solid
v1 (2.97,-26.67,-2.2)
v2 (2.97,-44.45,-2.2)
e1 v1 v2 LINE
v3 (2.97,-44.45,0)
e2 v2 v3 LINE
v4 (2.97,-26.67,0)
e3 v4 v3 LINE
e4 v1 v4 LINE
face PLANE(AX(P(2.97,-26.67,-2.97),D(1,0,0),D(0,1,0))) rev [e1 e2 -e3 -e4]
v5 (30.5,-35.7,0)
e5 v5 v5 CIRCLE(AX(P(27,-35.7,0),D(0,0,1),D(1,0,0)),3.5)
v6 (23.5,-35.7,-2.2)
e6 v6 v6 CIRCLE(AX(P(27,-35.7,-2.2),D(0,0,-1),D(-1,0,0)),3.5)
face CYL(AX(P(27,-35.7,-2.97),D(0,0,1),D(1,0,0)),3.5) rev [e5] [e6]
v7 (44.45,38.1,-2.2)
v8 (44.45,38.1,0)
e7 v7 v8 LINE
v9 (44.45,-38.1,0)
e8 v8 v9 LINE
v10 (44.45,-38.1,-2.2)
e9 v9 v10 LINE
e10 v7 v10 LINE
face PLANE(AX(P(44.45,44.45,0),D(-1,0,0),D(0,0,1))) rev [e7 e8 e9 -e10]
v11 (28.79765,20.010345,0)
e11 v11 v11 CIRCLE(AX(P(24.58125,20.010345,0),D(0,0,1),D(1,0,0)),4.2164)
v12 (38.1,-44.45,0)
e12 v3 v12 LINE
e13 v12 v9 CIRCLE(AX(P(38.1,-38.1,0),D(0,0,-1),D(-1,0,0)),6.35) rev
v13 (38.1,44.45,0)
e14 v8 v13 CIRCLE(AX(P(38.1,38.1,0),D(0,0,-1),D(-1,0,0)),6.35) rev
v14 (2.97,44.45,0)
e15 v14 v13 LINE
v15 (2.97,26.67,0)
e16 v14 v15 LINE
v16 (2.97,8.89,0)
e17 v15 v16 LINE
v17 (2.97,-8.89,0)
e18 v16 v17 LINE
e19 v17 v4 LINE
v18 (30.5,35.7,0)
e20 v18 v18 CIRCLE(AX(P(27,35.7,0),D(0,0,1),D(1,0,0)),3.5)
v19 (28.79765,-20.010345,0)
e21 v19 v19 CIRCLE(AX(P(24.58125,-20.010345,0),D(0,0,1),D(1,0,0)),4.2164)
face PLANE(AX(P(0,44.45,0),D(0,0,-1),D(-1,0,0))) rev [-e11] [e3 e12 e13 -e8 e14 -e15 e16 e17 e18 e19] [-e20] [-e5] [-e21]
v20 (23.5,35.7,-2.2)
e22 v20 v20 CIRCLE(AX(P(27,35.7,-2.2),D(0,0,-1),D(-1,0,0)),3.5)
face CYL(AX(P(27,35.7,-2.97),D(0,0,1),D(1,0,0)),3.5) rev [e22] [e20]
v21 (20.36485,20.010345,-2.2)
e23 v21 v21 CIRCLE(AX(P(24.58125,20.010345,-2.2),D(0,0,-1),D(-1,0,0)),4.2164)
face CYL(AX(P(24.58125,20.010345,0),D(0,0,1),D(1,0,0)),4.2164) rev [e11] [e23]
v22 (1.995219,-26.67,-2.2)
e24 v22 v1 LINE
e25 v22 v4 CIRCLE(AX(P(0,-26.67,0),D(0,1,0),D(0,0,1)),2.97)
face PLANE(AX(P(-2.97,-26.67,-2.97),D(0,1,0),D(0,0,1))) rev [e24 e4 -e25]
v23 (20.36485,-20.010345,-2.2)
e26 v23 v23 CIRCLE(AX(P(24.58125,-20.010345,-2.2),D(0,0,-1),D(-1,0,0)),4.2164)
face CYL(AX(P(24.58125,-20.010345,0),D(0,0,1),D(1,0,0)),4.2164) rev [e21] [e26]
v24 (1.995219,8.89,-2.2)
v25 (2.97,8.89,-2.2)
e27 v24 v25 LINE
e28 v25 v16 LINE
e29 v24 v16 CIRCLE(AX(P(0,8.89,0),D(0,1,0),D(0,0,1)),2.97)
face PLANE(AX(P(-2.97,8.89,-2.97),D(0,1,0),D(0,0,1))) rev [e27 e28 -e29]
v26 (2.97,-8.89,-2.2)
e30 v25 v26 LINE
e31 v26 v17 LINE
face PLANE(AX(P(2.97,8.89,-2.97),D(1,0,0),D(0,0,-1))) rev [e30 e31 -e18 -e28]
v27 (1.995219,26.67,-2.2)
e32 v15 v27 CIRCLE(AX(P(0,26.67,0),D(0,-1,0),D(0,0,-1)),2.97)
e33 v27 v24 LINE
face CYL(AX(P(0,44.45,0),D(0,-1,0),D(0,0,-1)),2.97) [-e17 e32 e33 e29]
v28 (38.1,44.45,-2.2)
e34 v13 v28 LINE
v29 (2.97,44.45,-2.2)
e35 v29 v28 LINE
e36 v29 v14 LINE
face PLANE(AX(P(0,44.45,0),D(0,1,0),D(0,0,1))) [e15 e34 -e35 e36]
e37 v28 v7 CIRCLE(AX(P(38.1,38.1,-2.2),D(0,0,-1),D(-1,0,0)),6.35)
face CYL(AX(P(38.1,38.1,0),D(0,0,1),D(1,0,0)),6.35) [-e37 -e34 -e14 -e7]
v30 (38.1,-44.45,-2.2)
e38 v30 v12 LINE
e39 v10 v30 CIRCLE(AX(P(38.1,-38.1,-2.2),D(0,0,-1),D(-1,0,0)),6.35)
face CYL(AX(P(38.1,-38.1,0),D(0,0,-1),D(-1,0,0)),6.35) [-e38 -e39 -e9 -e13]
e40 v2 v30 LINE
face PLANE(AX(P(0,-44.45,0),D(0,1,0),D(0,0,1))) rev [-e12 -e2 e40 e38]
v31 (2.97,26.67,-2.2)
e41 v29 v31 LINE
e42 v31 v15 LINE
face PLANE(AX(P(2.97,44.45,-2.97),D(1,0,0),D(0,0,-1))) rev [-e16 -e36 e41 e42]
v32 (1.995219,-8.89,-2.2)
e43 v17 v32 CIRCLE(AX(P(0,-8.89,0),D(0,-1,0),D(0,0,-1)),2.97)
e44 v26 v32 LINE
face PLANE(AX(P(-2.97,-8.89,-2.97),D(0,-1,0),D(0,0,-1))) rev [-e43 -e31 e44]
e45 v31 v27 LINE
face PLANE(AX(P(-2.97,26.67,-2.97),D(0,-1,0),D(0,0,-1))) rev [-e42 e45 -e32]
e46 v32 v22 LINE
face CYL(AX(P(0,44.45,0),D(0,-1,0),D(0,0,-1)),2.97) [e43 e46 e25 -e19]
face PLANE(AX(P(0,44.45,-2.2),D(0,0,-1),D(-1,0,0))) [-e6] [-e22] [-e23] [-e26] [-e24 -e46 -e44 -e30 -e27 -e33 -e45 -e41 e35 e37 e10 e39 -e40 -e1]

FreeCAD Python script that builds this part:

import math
import FreeCAD as App
import Part
import Sketcher
Q = App.Units.Quantity


def edges_at(feature, points):
    """Names of the edges that pass closest to the given points."""
    edges = feature.Shape.Edges
    near = lambda p: min(range(len(edges)), key=lambda i: edges[i].distToShape(Part.Vertex(*p))[0])
    return sorted({f"Edge{near(p) + 1}" for p in points})


def add_polygon(sketch, points):
    """Adds a closed chain of lines whose ends are joined by coincident constraints."""
    first, n = sketch.GeometryCount, len(points)
    for a, b in zip(points, points[1:] + points[:1]):
        sketch.addGeometry(Part.LineSegment(App.Vector(*a, 0), App.Vector(*b, 0)), False)
    for i in range(n):
        sketch.addConstraint(Sketcher.Constraint("Coincident", first + i, 2, first + (i + 1) % n, 1))

doc = App.newDocument("Part")
params = doc.addObject("Spreadsheet::Sheet", "Params")
for row, (alias, value) in enumerate([
    ("pad1_length", "3.5 in"),
    ("sketch2_height", "0.7 in"),
    ("fillet_radius", "0.25 in"),
    ("sketch4_diameter", "0.332 in"),
    ("hole_diameter", "0.332 in"),
], start=1):
    params.set(f"A{row}", alias)
    params.set(f"B{row}", "=" + value)
    params.setAlias(f"B{row}", alias)

body = doc.addObject("PartDesign::Body", "Body")

# Sketch on XZ plane
sketch1 = doc.addObject("Sketcher::SketchObject", "Sketch")
body.addObject(sketch1)
sketch1.AttachmentSupport = (doc.XZ_Plane, [""])
sketch1.MapMode = "FlatFace"
sketch1.addGeometry(Part.ArcOfCircle(Part.Circle(App.Vector(0, 0, 0), App.Vector(0, 0, 1), 3), math.radians(0), math.radians(312)), False)
sketch1.addGeometry(Part.LineSegment(App.Vector(3, 0, 0), App.Vector(44.5, 0, 0)), False)
sketch1.addGeometry(Part.LineSegment(App.Vector(44.5, 0, 0), App.Vector(44.5, -2.2, 0)), False)
sketch1.addGeometry(Part.LineSegment(App.Vector(44.5, -2.2, 0), App.Vector(2, -2.2, 0)), False)
sketch1.addConstraint(Sketcher.Constraint("Coincident", 0, 1, 1, 1))
sketch1.addConstraint(Sketcher.Constraint("Coincident", 1, 2, 2, 1))
sketch1.addConstraint(Sketcher.Constraint("Coincident", 2, 2, 3, 1))
sketch1.addConstraint(Sketcher.Constraint("Coincident", 3, 2, 0, 2))
sketch1.addConstraint(Sketcher.Constraint("Horizontal", 1))
sketch1.addConstraint(Sketcher.Constraint("Vertical", 2))
sketch1.addConstraint(Sketcher.Constraint("Horizontal", 3))
sketch1.addConstraint(Sketcher.Constraint("Coincident", 0, 3, -1, 1))
sketch1.addConstraint(Sketcher.Constraint("PointOnObject", 0, 1, -1))
sketch1.addConstraint(Sketcher.Constraint("DistanceX", -1, 1, 1, 2, Q("1.75 in")))
sketch1.addConstraint(Sketcher.Constraint("Radius", 0, Q("2.97 mm")))
sketch1.addConstraint(Sketcher.Constraint("DistanceY", 2, 2, 2, 1, Q("2.2 mm")))
pad1 = doc.addObject("PartDesign::Pad", "Pad")
body.addObject(pad1)
pad1.Profile = sketch1
pad1.setExpression("Length", "Params.pad1_length")
pad1.Midplane = True

# Sketch on XY plane
sketch2 = doc.addObject("Sketcher::SketchObject", "Sketch001")
body.addObject(sketch2)
sketch2.AttachmentSupport = (doc.XY_Plane, [""])
sketch2.MapMode = "FlatFace"
add_polygon(sketch2, [(-3, 44), (-3, 27), (3, 27), (3, 44)])  # lines 0-3
add_polygon(sketch2, [(-3, 9), (-3, -9), (3, -9), (3, 9)])  # lines 4-7
add_polygon(sketch2, [(-3, -27), (-3, -44), (3, -44), (3, -27)])  # lines 8-11
sketch2.addConstraint(Sketcher.Constraint("Vertical", 0))
sketch2.addConstraint(Sketcher.Constraint("Horizontal", 1))
sketch2.addConstraint(Sketcher.Constraint("Vertical", 2))
sketch2.addConstraint(Sketcher.Constraint("Horizontal", 3))
sketch2.addConstraint(Sketcher.Constraint("Vertical", 4))
sketch2.addConstraint(Sketcher.Constraint("Horizontal", 5))
sketch2.addConstraint(Sketcher.Constraint("Vertical", 6))
sketch2.addConstraint(Sketcher.Constraint("Horizontal", 7))
sketch2.addConstraint(Sketcher.Constraint("Vertical", 8))
sketch2.addConstraint(Sketcher.Constraint("Horizontal", 9))
sketch2.addConstraint(Sketcher.Constraint("Vertical", 10))
sketch2.addConstraint(Sketcher.Constraint("Horizontal", 11))
sketch2.addConstraint(Sketcher.Constraint("Symmetric", 4, 2, 6, 2, -1, 1))
sketch2.addConstraint(Sketcher.Constraint("Symmetric", 2, 2, 8, 2, -1, 1))
sketch2.addConstraint(Sketcher.Constraint("Symmetric", 0, 2, 10, 2, -1, 1))
sketch2.addConstraint(Sketcher.Constraint("Vertical", 3, 2, 4, 2))
sketch2.addConstraint(Sketcher.Constraint("Vertical", 2, 2, 5, 2))
sketch2.addConstraint(Sketcher.Constraint("Equal", 2, 4))
sketch2.addConstraint(Sketcher.Constraint("DistanceY", 0, 2, 0, 1, Q("0.7 in")))
sketch2.addConstraint(Sketcher.Constraint("DistanceY", 4, 2, 0, 2, Q("1.4 in")))
sketch2.addConstraint(Sketcher.Constraint("DistanceX", 1, 1, 1, 2, Q("5.94 mm")))
sketch2.setExpression("Constraints[30]", "Params.sketch2_height")
pocket1 = doc.addObject("PartDesign::Pocket", "Pocket")
body.addObject(pocket1)
pocket1.Profile = sketch2
pocket1.Type = "ThroughAll"
pocket1.Midplane = True
doc.recompute()

fillet = doc.addObject("PartDesign::Fillet", "Fillet")
body.addObject(fillet)
fillet.Base = (pocket1, edges_at(pocket1, [(44.45, 44.45, -1.1), (44.45, -44.45, -1.1)]))
fillet.setExpression("Radius", "Params.fillet_radius")

# Sketch on XY plane
sketch3 = doc.addObject("Sketcher::SketchObject", "Sketch002")
body.addObject(sketch3)
sketch3.AttachmentSupport = (doc.XY_Plane, [""])
sketch3.MapMode = "FlatFace"
sketch3.addGeometry(Part.Circle(App.Vector(27, 35.7, 0), App.Vector(0, 0, 1), 3.5), False)
sketch3.addGeometry(Part.Circle(App.Vector(27, -35.7, 0), App.Vector(0, 0, 1), 3.5), False)
sketch3.addConstraint(Sketcher.Constraint("Equal", 0, 1))
sketch3.addConstraint(Sketcher.Constraint("Symmetric", 0, 3, 1, 3, -1))
sketch3.addConstraint(Sketcher.Constraint("Diameter", 0, Q("7 mm")))
sketch3.addConstraint(Sketcher.Constraint("DistanceX", -1, 1, 0, 3, Q("27 mm")))
sketch3.addConstraint(Sketcher.Constraint("DistanceY", -1, 1, 0, 3, Q("35.7 mm")))
pocket2 = doc.addObject("PartDesign::Pocket", "Pocket001")
body.addObject(pocket2)
pocket2.Profile = sketch3
pocket2.Type = "ThroughAll"

# Sketch on XY plane
sketch4 = doc.addObject("Sketcher::SketchObject", "Sketch003")
body.addObject(sketch4)
sketch4.AttachmentSupport = (doc.XY_Plane, [""])
sketch4.MapMode = "FlatFace"
sketch4.addGeometry(Part.Circle(App.Vector(24.6, 20, 0), App.Vector(0, 0, 1), 4.2), False)
sketch4.addGeometry(Part.Circle(App.Vector(24.6, -20, 0), App.Vector(0, 0, 1), 4.2), False)
sketch4.addConstraint(Sketcher.Constraint("Equal", 0, 1))
sketch4.addConstraint(Sketcher.Constraint("Symmetric", 0, 3, 1, 3, -1))
sketch4.addConstraint(Sketcher.Constraint("Diameter", 0, Q("0.332 in")))
sketch4.addConstraint(Sketcher.Constraint("DistanceX", -1, 1, 0, 3, Q("24.58125 mm")))
sketch4.addConstraint(Sketcher.Constraint("DistanceY", 1, 3, 0, 3, Q("40.02069 mm")))
sketch4.setExpression("Constraints[2]", "Params.sketch4_diameter")
doc.recompute()
hole = doc.addObject("PartDesign::Hole", "Hole")
body.addObject(hole)
hole.Profile = sketch4
hole.ThreadType = "None"
hole.setExpression("Diameter", "Params.hole_diameter")
hole.DepthType = "ThroughAll"

doc.recompute()
